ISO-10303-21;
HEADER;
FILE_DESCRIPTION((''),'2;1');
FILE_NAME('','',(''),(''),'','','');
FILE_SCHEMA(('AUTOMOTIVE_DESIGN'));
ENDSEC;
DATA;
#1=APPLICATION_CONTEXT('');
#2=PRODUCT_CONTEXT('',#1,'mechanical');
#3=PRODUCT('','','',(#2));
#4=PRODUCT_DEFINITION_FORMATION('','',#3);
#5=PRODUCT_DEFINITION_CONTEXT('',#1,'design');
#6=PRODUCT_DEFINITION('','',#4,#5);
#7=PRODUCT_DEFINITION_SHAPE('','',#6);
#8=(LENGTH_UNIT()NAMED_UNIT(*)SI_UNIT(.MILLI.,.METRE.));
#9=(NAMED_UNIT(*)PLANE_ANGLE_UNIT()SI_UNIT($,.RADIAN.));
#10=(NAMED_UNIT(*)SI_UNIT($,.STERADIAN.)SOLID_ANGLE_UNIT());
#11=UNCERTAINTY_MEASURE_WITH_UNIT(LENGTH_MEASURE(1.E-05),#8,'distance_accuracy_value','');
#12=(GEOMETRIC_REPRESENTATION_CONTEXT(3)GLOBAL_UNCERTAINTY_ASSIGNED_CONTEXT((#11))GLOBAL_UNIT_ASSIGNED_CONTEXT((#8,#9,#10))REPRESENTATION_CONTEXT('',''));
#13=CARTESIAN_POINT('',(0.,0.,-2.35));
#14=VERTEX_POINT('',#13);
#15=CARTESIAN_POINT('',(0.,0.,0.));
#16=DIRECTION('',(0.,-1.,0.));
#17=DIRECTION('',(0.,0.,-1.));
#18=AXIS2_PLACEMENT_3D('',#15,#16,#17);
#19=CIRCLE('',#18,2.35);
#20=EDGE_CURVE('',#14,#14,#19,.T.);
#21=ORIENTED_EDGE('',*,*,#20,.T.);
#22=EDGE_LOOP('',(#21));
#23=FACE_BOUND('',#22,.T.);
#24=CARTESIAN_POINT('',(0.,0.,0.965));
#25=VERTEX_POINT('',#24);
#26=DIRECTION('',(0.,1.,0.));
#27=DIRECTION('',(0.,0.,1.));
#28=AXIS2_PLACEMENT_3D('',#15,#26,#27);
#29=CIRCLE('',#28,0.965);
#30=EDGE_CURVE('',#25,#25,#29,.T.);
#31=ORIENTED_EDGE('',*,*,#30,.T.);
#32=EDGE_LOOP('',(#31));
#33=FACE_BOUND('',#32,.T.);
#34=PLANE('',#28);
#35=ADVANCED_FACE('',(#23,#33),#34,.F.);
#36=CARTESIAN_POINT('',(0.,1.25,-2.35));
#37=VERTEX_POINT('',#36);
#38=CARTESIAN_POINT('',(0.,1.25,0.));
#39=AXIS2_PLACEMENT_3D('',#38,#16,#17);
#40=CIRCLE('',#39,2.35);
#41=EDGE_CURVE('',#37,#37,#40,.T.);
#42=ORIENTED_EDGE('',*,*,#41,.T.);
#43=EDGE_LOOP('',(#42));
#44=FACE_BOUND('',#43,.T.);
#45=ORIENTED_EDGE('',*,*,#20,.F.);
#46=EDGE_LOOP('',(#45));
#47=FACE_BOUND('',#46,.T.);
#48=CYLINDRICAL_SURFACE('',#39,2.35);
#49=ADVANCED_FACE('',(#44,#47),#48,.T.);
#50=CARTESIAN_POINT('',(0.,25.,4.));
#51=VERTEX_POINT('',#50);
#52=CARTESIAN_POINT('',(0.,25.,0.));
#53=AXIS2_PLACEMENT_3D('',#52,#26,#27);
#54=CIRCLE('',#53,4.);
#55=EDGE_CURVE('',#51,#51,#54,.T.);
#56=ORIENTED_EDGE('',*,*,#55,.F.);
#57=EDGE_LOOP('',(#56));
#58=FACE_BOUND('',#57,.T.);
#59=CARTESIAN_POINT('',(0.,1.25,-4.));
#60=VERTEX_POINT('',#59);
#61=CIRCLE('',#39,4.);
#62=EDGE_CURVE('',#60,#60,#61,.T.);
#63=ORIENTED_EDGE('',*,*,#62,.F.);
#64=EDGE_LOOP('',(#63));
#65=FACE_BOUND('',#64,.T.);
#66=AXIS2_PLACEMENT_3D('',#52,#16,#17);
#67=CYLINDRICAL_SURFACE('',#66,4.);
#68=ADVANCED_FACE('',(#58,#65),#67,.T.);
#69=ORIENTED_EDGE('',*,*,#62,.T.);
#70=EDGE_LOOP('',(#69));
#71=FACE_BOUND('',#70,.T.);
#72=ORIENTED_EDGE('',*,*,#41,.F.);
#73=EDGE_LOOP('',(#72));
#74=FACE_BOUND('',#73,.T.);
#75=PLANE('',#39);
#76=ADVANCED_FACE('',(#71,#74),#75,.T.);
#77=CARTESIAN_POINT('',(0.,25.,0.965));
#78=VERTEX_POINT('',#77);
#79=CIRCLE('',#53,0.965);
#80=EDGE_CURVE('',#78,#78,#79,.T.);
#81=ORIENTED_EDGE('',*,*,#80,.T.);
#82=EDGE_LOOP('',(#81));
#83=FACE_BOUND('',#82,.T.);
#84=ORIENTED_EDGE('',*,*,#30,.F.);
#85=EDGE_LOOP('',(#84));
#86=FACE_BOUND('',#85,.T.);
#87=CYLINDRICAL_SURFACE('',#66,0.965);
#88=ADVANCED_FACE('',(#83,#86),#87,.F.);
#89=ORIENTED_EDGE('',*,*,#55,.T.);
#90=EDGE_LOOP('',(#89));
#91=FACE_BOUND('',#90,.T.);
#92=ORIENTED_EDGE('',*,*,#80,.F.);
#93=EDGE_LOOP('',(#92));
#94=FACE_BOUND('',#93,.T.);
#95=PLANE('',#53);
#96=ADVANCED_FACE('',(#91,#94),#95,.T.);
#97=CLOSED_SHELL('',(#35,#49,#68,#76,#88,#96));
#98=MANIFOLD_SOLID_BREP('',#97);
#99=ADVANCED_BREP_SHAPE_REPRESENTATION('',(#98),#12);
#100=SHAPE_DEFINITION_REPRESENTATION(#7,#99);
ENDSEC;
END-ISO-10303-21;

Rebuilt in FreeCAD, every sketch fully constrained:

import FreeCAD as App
import Part
import Sketcher
from FreeCAD import Vector

doc = App.newDocument("Part")
body = doc.addObject("PartDesign::Body", "Body")

# Sketch on XZ plane
sketch1 = body.newObject("Sketcher::SketchObject", "Sketch")
sketch1.AttachmentSupport = (doc.getObject("XZ_Plane"), [""])
sketch1.MapMode = "FlatFace"
sketch1.addGeometry(Part.Circle(Vector(0, 0, 0), Vector(0, 0, 1), 4), False)
sketch1.addGeometry(Part.Circle(Vector(0, 0, 0), Vector(0, 0, 1), 0.965), False)
sketch1.addConstraint(Sketcher.Constraint("Coincident", 0, 3, -1, 1))
sketch1.addConstraint(Sketcher.Constraint("Coincident", 1, 3, -1, 1))
sketch1.addConstraint(Sketcher.Constraint("Diameter", 0, 8.0))
sketch1.addConstraint(Sketcher.Constraint("Diameter", 1, 1.93))
pad1 = body.newObject("PartDesign::Pad", "Pad")
pad1.Profile = sketch1
pad1.Length = 25
pad1.Reversed = True

# Sketch on XZ plane
sketch2 = body.newObject("Sketcher::SketchObject", "Sketch001")
sketch2.AttachmentSupport = (doc.getObject("XZ_Plane"), [""])
sketch2.MapMode = "FlatFace"
sketch2.addGeometry(Part.Circle(Vector(0, 0, 0), Vector(0, 0, 1), 4), False)
sketch2.addGeometry(Part.Circle(Vector(0, 0, 0), Vector(0, 0, 1), 2.35), False)
sketch2.addConstraint(Sketcher.Constraint("Coincident", 0, 3, -1, 1))
sketch2.addConstraint(Sketcher.Constraint("Coincident", 1, 3, -1, 1))
sketch2.addConstraint(Sketcher.Constraint("Diameter", 0, 8.0))
sketch2.addConstraint(Sketcher.Constraint("Diameter", 1, 4.7))
pocket1 = body.newObject("PartDesign::Pocket", "Pocket")
pocket1.Profile = sketch2
pocket1.Length = 1.25

doc.recompute()
